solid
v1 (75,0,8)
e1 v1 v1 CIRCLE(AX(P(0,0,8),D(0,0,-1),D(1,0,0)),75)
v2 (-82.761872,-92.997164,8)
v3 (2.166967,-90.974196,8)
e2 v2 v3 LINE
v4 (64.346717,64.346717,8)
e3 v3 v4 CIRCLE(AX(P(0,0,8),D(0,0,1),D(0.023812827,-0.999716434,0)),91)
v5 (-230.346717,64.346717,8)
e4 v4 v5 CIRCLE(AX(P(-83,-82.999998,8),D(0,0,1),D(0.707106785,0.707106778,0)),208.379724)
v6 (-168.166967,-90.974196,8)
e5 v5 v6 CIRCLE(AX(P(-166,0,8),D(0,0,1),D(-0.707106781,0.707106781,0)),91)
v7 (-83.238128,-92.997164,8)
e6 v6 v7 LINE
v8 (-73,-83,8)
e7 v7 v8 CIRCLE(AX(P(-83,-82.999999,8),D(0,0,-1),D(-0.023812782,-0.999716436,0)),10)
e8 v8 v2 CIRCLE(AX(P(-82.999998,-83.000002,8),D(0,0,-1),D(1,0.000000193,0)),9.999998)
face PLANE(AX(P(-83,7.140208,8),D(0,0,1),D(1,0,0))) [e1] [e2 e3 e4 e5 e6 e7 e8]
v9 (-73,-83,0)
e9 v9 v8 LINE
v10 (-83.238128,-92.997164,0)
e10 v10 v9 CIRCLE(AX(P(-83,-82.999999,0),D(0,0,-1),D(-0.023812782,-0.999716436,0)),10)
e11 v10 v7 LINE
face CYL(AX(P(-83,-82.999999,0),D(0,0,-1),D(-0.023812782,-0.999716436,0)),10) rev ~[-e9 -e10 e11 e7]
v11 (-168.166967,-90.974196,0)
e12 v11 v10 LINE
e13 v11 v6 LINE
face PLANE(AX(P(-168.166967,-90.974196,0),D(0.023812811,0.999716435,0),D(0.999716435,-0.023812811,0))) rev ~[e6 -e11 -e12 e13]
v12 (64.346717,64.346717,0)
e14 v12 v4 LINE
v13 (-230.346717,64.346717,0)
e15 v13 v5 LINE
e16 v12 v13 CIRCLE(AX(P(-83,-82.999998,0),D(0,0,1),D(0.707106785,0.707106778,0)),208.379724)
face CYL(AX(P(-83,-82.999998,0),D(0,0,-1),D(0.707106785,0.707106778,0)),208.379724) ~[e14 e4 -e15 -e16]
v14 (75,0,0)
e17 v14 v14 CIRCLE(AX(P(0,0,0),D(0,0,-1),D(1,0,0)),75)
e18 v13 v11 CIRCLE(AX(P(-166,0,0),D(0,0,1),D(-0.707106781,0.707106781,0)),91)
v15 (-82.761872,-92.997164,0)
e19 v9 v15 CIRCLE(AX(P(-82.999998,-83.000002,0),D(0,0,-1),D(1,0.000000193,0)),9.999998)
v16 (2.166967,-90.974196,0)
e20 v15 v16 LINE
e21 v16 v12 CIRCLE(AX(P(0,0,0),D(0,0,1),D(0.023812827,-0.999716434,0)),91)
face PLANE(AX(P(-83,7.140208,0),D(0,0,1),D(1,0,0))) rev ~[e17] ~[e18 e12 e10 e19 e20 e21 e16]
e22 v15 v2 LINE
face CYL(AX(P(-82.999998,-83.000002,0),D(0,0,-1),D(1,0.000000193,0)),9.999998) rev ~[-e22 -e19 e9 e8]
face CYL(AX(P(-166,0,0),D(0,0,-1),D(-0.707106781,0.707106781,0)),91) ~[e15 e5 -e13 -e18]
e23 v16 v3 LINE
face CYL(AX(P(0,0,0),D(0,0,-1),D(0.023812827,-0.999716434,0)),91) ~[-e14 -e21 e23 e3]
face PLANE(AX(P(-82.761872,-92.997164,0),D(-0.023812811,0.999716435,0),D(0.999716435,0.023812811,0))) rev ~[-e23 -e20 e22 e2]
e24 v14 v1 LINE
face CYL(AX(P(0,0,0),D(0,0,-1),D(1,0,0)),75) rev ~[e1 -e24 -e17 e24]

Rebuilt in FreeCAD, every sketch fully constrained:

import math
import FreeCAD as App
import Part
import Sketcher

V = App.Vector
Q = App.Units.Quantity

doc = App.newDocument("Part")
body = doc.addObject("PartDesign::Body", "Body")

# Sketch on XY plane
sketch1 = doc.addObject("Sketcher::SketchObject", "Sketch")
body.addObject(sketch1)
sketch1.AttachmentSupport = (doc.XY_Plane, [""])
sketch1.MapMode = "FlatFace"
sketch1.addGeometry([
    Part.ArcOfCircle(Part.Circle(V(0, 0, 0), V(0, 0, 1), 91), math.radians(-88.635497), math.radians(45)),  # 0
    Part.ArcOfCircle(Part.Circle(V(-83, -82.999998, 0), V(0, 0, 1), 208.379724), math.radians(45), math.radians(135)),  # 1
    Part.ArcOfCircle(Part.Circle(V(-166, 0, 0), V(0, 0, 1), 91), math.radians(135), math.radians(268.635497)),  # 2
    Part.LineSegment(V(-168.166967, -90.974196, 0), V(-83.238128, -92.997164, 0)),  # 3
    Part.ArcOfCircle(Part.Circle(V(-83, -82.999999, 0), V(0, 0, 1), 10), math.radians(-0.000003), math.radians(268.635499)),  # 4
    Part.ArcOfCircle(Part.Circle(V(-82.999998, -83.000002, 0), V(0, 0, 1), 9.999998), math.radians(-88.635511), math.radians(0.000011)),  # 5
    Part.LineSegment(V(-82.761872, -92.997164, 0), V(2.166967, -90.974196, 0)),  # 6
    Part.Circle(V(0, 0, 0), V(0, 0, 1), 75),  # 7
], False)
sketch1.addConstraint([
    Sketcher.Constraint("Tangent", 0, 2, 1, 1),
    Sketcher.Constraint("Tangent", 1, 2, 2, 1),
    Sketcher.Constraint("Tangent", 2, 2, 3, 1),
    Sketcher.Constraint("Tangent", 3, 2, 4, 2),
    Sketcher.Constraint("Tangent", 4, 1, 5, 2),
    Sketcher.Constraint("Tangent", 5, 1, 6, 1),
    Sketcher.Constraint("Tangent", 6, 2, 0, 1),
    Sketcher.Constraint("Coincident", 0, 3, -1, 1),
    Sketcher.Constraint("Coincident", 7, 3, -1, 1),
    Sketcher.Constraint("Coincident", 4, 3, 1, 3),
    Sketcher.Constraint("Equal", 0, 2),
    Sketcher.Constraint("PointOnObject", 2, 3, -1),
    Sketcher.Constraint("Horizontal", 5, 3, 4, 1),
    Sketcher.Constraint("Horizontal", 3, 2, 5, 1),
    Sketcher.Constraint("Diameter", 7, Q("150 mm")),
    Sketcher.Constraint("Radius", 0, Q("91 mm")),
    Sketcher.Constraint("Radius", 4, Q("10 mm")),
    Sketcher.Constraint("DistanceX", 1, 3, -1, 1, Q("83 mm")),
    Sketcher.Constraint("DistanceY", 1, 3, -1, 1, Q("82.999998 mm")),
])
pad1 = doc.addObject("PartDesign::Pad", "Pad")
body.addObject(pad1)
pad1.Profile = sketch1
pad1.Length = 8

doc.recompute()
